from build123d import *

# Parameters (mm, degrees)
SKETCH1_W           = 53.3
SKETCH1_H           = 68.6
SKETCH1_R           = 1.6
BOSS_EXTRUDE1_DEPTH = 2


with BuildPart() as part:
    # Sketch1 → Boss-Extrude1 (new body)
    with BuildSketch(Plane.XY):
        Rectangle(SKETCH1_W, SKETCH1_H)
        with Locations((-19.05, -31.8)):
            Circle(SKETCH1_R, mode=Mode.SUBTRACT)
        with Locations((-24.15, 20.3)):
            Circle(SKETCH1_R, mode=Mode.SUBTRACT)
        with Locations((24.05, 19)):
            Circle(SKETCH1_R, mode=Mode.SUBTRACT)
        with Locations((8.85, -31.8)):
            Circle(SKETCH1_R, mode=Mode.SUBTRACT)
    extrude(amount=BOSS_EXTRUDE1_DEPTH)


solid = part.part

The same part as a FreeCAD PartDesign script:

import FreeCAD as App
import Part
import Sketcher
from FreeCAD import Vector


def add_polygon(sketch, points):
    """Adds a closed chain of lines whose ends are joined by coincident constraints."""
    first, n = sketch.GeometryCount, len(points)
    for a, b in zip(points, points[1:] + points[:1]):
        sketch.addGeometry(Part.LineSegment(App.Vector(*a, 0), App.Vector(*b, 0)), False)
    for i in range(n):
        sketch.addConstraint(Sketcher.Constraint("Coincident", first + i, 2, first + (i + 1) % n, 1))

doc = App.newDocument("Part")
body = doc.addObject("PartDesign::Body", "Body")

sketch1 = body.newObject("Sketcher::SketchObject", "Sketch")
sketch1.AttachmentSupport = (doc.getObject("XY_Plane"), [""])
sketch1.MapMode = "FlatFace"
add_polygon(sketch1, [(-26.6, 34.3), (-26.6, -34.3), (26.6, -34.3), (26.6, 34.3)])
sketch1.addGeometry(Part.Circle(Vector(-19.1, -31.8, 0), Vector(0, 0, 1), 1.6), False)
sketch1.addGeometry(Part.Circle(Vector(8.8, -31.8, 0), Vector(0, 0, 1), 1.6), False)
sketch1.addGeometry(Part.Circle(Vector(-24.1, 20.3, 0), Vector(0, 0, 1), 1.6), False)
sketch1.addGeometry(Part.Circle(Vector(24.1, 19, 0), Vector(0, 0, 1), 1.6), False)
sketch1.addConstraint([
    Sketcher.Constraint("Vertical", 0),
    Sketcher.Constraint("Horizontal", 1),
    Sketcher.Constraint("Vertical", 2),
    Sketcher.Constraint("Horizontal", 3),
    Sketcher.Constraint("Equal", 4, 5),
    Sketcher.Constraint("Equal", 5, 6),
    Sketcher.Constraint("Equal", 6, 7),
    Sketcher.Constraint("Symmetric", 0, 2, 2, 2, -1, 1),
    Sketcher.Constraint("Horizontal", 4, 3, 5, 3),
    Sketcher.Constraint("Diameter", 4, 3.2),
    Sketcher.Constraint("DistanceX", 1, 1, 1, 2, 53.3),
    Sketcher.Constraint("DistanceY", 0, 2, 0, 1, 68.6),
    Sketcher.Constraint("DistanceY", -1, 1, 7, 3, 19.0),
    Sketcher.Constraint("DistanceX", 6, 3, 5, 3, 33.0),
    Sketcher.Constraint("DistanceY", 6, 3, 2, 2, 14.0),
    Sketcher.Constraint("DistanceY", 4, 3, -1, 1, 31.8),
    Sketcher.Constraint("DistanceX", 4, 3, 5, 3, 27.9),
    Sketcher.Constraint("DistanceX", 6, 3, 7, 3, 48.2),
    Sketcher.Constraint("DistanceX", 0, 2, 4, 3, 7.6),
])
pad1 = body.newObject("PartDesign::Pad", "Pad")
pad1.Profile = sketch1
pad1.Length = 2

doc.recompute()
